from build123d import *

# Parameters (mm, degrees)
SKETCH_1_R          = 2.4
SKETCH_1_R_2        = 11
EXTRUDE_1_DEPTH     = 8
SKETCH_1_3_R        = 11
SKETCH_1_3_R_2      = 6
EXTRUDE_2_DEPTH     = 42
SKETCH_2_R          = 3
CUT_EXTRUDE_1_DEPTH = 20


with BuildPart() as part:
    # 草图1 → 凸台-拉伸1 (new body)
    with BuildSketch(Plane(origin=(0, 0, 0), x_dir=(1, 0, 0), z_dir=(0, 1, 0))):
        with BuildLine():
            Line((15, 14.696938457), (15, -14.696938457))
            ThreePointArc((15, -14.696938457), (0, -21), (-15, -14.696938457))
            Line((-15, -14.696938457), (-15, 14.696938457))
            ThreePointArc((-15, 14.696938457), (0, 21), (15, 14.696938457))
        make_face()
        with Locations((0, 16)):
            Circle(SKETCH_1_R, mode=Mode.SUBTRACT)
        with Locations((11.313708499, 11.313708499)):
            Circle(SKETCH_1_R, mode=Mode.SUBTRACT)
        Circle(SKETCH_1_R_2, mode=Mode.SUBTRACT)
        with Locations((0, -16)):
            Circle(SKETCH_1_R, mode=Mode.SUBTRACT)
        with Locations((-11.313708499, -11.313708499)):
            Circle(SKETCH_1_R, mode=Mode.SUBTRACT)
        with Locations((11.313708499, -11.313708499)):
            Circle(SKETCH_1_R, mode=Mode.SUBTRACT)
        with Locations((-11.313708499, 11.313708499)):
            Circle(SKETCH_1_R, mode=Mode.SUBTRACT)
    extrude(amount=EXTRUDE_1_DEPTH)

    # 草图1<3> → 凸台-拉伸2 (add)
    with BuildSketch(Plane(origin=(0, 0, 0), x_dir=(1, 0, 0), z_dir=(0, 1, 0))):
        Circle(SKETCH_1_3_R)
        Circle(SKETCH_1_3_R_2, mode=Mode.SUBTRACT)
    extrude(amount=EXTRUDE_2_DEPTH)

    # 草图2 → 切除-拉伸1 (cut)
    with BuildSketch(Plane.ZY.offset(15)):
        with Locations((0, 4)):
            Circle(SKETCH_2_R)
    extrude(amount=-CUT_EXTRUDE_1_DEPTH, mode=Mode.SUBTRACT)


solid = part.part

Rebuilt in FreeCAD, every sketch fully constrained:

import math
import FreeCAD as App
import Part
import Sketcher
from FreeCAD import Vector
Q = App.Units.Quantity

doc = App.newDocument("Part")
body = doc.addObject("PartDesign::Body", "Body")

# Sketch on XZ plane
sketch1 = body.newObject("Sketcher::SketchObject", "Sketch")
sketch1.AttachmentSupport = (doc.getObject("XZ_Plane"), [""])
sketch1.MapMode = "FlatFace"
sketch1.addGeometry([
    Part.LineSegment(Vector(15, 14.696938, 0), Vector(15, -14.696938, 0)),  # 0
    Part.ArcOfCircle(Part.Circle(Vector(0, 0, 0), Vector(0, 0, 1), 21), math.radians(-135.584691), math.radians(-44.415309)),  # 1
    Part.LineSegment(Vector(-15, -14.696938, 0), Vector(-15, 14.696938, 0)),  # 2
    Part.ArcOfCircle(Part.Circle(Vector(0, 0, 0), Vector(0, 0, 1), 21), math.radians(44.415309), math.radians(135.584691)),  # 3
    Part.Circle(Vector(11.313708, 11.313708, 0), Vector(0, 0, 1), 2.4),  # 4
    Part.Circle(Vector(0, 16, 0), Vector(0, 0, 1), 2.4),  # 5
    Part.Circle(Vector(-11.313708, 11.313708, 0), Vector(0, 0, 1), 2.4),  # 6
    Part.Circle(Vector(11.313708, -11.313708, 0), Vector(0, 0, 1), 2.4),  # 7
    Part.Circle(Vector(0, 0, 0), Vector(0, 0, 1), 11),  # 8
    Part.Circle(Vector(0, -16, 0), Vector(0, 0, 1), 2.4),  # 9
    Part.Circle(Vector(-11.313708, -11.313708, 0), Vector(0, 0, 1), 2.4),  # 10
], False)
sketch1.addConstraint([
    Sketcher.Constraint("Coincident", 0, 2, 1, 2),
    Sketcher.Constraint("Coincident", 1, 1, 2, 1),
    Sketcher.Constraint("Coincident", 2, 2, 3, 2),
    Sketcher.Constraint("Coincident", 3, 1, 0, 1),
    Sketcher.Constraint("Vertical", 0),
    Sketcher.Constraint("Vertical", 2),
    Sketcher.Constraint("Coincident", 1, 3, -1, 1),
    Sketcher.Constraint("Coincident", 3, 3, -1, 1),
    Sketcher.Constraint("Coincident", 8, 3, -1, 1),
    Sketcher.Constraint("Equal", 1, 3),
    Sketcher.Constraint("Equal", 4, 5),
    Sketcher.Constraint("Equal", 5, 6),
    Sketcher.Constraint("Equal", 6, 7),
    Sketcher.Constraint("Equal", 7, 9),
    Sketcher.Constraint("Equal", 9, 10),
    Sketcher.Constraint("Symmetric", 6, 3, 7, 3, -1, 1),
    Sketcher.Constraint("Symmetric", 5, 3, 9, 3, -1, 1),
    Sketcher.Constraint("Symmetric", 4, 3, 10, 3, -1, 1),
    Sketcher.Constraint("Symmetric", 4, 3, 6, 3, -2),
    Sketcher.Constraint("PointOnObject", 5, 3, -2),
    Sketcher.Constraint("Horizontal", 0, 2, 1, 1),
    Sketcher.Constraint("Diameter", 8, Q("22 mm")),
    Sketcher.Constraint("Radius", 1, Q("21 mm")),
    Sketcher.Constraint("Diameter", 4, Q("4.8 mm")),
    Sketcher.Constraint("DistanceY", -1, 1, 5, 3, Q("16 mm")),
    Sketcher.Constraint("DistanceX", -1, 1, 0, 2, Q("15 mm")),
    Sketcher.Constraint("DistanceX", -1, 1, 4, 3, Q("11.313708 mm")),
    Sketcher.Constraint("DistanceY", -1, 1, 4, 3, Q("11.313708 mm")),
])
pad1 = body.newObject("PartDesign::Pad", "Pad")
pad1.Profile = sketch1
pad1.Length = 8
pad1.Reversed = True

# Sketch on XZ plane
sketch2 = body.newObject("Sketcher::SketchObject", "Sketch001")
sketch2.AttachmentSupport = (doc.getObject("XZ_Plane"), [""])
sketch2.MapMode = "FlatFace"
sketch2.addGeometry([
    Part.Circle(Vector(0, 0, 0), Vector(0, 0, 1), 11),
    Part.Circle(Vector(0, 0, 0), Vector(0, 0, 1), 6),
], False)
sketch2.addConstraint([
    Sketcher.Constraint("Coincident", 0, 3, -1, 1),
    Sketcher.Constraint("Coincident", 1, 3, -1, 1),
    Sketcher.Constraint("Diameter", 0, Q("22 mm")),
    Sketcher.Constraint("Diameter", 1, Q("12 mm")),
])
pad2 = body.newObject("PartDesign::Pad", "Pad001")
pad2.Profile = sketch2
pad2.Length = 42
pad2.Reversed = True

# Sketch on YZ plane
sketch3 = body.newObject("Sketcher::SketchObject", "Sketch002")
sketch3.AttachmentSupport = (doc.getObject("YZ_Plane"), [""])
sketch3.MapMode = "FlatFace"
sketch3.AttachmentOffset = App.Placement(Vector(0, 0, -15), App.Rotation())
sketch3.addGeometry(Part.Circle(Vector(4, 0, 0), Vector(0, 0, 1), 3), False)
sketch3.addConstraint([
    Sketcher.Constraint("PointOnObject", 0, 3, -1),
    Sketcher.Constraint("Diameter", 0, Q("6 mm")),
    Sketcher.Constraint("DistanceX", -1, 1, 0, 3, Q("4 mm")),
])
pocket1 = body.newObject("PartDesign::Pocket", "Pocket")
pocket1.Profile = sketch3
pocket1.Length = 20
pocket1.Reversed = True

doc.recompute()
